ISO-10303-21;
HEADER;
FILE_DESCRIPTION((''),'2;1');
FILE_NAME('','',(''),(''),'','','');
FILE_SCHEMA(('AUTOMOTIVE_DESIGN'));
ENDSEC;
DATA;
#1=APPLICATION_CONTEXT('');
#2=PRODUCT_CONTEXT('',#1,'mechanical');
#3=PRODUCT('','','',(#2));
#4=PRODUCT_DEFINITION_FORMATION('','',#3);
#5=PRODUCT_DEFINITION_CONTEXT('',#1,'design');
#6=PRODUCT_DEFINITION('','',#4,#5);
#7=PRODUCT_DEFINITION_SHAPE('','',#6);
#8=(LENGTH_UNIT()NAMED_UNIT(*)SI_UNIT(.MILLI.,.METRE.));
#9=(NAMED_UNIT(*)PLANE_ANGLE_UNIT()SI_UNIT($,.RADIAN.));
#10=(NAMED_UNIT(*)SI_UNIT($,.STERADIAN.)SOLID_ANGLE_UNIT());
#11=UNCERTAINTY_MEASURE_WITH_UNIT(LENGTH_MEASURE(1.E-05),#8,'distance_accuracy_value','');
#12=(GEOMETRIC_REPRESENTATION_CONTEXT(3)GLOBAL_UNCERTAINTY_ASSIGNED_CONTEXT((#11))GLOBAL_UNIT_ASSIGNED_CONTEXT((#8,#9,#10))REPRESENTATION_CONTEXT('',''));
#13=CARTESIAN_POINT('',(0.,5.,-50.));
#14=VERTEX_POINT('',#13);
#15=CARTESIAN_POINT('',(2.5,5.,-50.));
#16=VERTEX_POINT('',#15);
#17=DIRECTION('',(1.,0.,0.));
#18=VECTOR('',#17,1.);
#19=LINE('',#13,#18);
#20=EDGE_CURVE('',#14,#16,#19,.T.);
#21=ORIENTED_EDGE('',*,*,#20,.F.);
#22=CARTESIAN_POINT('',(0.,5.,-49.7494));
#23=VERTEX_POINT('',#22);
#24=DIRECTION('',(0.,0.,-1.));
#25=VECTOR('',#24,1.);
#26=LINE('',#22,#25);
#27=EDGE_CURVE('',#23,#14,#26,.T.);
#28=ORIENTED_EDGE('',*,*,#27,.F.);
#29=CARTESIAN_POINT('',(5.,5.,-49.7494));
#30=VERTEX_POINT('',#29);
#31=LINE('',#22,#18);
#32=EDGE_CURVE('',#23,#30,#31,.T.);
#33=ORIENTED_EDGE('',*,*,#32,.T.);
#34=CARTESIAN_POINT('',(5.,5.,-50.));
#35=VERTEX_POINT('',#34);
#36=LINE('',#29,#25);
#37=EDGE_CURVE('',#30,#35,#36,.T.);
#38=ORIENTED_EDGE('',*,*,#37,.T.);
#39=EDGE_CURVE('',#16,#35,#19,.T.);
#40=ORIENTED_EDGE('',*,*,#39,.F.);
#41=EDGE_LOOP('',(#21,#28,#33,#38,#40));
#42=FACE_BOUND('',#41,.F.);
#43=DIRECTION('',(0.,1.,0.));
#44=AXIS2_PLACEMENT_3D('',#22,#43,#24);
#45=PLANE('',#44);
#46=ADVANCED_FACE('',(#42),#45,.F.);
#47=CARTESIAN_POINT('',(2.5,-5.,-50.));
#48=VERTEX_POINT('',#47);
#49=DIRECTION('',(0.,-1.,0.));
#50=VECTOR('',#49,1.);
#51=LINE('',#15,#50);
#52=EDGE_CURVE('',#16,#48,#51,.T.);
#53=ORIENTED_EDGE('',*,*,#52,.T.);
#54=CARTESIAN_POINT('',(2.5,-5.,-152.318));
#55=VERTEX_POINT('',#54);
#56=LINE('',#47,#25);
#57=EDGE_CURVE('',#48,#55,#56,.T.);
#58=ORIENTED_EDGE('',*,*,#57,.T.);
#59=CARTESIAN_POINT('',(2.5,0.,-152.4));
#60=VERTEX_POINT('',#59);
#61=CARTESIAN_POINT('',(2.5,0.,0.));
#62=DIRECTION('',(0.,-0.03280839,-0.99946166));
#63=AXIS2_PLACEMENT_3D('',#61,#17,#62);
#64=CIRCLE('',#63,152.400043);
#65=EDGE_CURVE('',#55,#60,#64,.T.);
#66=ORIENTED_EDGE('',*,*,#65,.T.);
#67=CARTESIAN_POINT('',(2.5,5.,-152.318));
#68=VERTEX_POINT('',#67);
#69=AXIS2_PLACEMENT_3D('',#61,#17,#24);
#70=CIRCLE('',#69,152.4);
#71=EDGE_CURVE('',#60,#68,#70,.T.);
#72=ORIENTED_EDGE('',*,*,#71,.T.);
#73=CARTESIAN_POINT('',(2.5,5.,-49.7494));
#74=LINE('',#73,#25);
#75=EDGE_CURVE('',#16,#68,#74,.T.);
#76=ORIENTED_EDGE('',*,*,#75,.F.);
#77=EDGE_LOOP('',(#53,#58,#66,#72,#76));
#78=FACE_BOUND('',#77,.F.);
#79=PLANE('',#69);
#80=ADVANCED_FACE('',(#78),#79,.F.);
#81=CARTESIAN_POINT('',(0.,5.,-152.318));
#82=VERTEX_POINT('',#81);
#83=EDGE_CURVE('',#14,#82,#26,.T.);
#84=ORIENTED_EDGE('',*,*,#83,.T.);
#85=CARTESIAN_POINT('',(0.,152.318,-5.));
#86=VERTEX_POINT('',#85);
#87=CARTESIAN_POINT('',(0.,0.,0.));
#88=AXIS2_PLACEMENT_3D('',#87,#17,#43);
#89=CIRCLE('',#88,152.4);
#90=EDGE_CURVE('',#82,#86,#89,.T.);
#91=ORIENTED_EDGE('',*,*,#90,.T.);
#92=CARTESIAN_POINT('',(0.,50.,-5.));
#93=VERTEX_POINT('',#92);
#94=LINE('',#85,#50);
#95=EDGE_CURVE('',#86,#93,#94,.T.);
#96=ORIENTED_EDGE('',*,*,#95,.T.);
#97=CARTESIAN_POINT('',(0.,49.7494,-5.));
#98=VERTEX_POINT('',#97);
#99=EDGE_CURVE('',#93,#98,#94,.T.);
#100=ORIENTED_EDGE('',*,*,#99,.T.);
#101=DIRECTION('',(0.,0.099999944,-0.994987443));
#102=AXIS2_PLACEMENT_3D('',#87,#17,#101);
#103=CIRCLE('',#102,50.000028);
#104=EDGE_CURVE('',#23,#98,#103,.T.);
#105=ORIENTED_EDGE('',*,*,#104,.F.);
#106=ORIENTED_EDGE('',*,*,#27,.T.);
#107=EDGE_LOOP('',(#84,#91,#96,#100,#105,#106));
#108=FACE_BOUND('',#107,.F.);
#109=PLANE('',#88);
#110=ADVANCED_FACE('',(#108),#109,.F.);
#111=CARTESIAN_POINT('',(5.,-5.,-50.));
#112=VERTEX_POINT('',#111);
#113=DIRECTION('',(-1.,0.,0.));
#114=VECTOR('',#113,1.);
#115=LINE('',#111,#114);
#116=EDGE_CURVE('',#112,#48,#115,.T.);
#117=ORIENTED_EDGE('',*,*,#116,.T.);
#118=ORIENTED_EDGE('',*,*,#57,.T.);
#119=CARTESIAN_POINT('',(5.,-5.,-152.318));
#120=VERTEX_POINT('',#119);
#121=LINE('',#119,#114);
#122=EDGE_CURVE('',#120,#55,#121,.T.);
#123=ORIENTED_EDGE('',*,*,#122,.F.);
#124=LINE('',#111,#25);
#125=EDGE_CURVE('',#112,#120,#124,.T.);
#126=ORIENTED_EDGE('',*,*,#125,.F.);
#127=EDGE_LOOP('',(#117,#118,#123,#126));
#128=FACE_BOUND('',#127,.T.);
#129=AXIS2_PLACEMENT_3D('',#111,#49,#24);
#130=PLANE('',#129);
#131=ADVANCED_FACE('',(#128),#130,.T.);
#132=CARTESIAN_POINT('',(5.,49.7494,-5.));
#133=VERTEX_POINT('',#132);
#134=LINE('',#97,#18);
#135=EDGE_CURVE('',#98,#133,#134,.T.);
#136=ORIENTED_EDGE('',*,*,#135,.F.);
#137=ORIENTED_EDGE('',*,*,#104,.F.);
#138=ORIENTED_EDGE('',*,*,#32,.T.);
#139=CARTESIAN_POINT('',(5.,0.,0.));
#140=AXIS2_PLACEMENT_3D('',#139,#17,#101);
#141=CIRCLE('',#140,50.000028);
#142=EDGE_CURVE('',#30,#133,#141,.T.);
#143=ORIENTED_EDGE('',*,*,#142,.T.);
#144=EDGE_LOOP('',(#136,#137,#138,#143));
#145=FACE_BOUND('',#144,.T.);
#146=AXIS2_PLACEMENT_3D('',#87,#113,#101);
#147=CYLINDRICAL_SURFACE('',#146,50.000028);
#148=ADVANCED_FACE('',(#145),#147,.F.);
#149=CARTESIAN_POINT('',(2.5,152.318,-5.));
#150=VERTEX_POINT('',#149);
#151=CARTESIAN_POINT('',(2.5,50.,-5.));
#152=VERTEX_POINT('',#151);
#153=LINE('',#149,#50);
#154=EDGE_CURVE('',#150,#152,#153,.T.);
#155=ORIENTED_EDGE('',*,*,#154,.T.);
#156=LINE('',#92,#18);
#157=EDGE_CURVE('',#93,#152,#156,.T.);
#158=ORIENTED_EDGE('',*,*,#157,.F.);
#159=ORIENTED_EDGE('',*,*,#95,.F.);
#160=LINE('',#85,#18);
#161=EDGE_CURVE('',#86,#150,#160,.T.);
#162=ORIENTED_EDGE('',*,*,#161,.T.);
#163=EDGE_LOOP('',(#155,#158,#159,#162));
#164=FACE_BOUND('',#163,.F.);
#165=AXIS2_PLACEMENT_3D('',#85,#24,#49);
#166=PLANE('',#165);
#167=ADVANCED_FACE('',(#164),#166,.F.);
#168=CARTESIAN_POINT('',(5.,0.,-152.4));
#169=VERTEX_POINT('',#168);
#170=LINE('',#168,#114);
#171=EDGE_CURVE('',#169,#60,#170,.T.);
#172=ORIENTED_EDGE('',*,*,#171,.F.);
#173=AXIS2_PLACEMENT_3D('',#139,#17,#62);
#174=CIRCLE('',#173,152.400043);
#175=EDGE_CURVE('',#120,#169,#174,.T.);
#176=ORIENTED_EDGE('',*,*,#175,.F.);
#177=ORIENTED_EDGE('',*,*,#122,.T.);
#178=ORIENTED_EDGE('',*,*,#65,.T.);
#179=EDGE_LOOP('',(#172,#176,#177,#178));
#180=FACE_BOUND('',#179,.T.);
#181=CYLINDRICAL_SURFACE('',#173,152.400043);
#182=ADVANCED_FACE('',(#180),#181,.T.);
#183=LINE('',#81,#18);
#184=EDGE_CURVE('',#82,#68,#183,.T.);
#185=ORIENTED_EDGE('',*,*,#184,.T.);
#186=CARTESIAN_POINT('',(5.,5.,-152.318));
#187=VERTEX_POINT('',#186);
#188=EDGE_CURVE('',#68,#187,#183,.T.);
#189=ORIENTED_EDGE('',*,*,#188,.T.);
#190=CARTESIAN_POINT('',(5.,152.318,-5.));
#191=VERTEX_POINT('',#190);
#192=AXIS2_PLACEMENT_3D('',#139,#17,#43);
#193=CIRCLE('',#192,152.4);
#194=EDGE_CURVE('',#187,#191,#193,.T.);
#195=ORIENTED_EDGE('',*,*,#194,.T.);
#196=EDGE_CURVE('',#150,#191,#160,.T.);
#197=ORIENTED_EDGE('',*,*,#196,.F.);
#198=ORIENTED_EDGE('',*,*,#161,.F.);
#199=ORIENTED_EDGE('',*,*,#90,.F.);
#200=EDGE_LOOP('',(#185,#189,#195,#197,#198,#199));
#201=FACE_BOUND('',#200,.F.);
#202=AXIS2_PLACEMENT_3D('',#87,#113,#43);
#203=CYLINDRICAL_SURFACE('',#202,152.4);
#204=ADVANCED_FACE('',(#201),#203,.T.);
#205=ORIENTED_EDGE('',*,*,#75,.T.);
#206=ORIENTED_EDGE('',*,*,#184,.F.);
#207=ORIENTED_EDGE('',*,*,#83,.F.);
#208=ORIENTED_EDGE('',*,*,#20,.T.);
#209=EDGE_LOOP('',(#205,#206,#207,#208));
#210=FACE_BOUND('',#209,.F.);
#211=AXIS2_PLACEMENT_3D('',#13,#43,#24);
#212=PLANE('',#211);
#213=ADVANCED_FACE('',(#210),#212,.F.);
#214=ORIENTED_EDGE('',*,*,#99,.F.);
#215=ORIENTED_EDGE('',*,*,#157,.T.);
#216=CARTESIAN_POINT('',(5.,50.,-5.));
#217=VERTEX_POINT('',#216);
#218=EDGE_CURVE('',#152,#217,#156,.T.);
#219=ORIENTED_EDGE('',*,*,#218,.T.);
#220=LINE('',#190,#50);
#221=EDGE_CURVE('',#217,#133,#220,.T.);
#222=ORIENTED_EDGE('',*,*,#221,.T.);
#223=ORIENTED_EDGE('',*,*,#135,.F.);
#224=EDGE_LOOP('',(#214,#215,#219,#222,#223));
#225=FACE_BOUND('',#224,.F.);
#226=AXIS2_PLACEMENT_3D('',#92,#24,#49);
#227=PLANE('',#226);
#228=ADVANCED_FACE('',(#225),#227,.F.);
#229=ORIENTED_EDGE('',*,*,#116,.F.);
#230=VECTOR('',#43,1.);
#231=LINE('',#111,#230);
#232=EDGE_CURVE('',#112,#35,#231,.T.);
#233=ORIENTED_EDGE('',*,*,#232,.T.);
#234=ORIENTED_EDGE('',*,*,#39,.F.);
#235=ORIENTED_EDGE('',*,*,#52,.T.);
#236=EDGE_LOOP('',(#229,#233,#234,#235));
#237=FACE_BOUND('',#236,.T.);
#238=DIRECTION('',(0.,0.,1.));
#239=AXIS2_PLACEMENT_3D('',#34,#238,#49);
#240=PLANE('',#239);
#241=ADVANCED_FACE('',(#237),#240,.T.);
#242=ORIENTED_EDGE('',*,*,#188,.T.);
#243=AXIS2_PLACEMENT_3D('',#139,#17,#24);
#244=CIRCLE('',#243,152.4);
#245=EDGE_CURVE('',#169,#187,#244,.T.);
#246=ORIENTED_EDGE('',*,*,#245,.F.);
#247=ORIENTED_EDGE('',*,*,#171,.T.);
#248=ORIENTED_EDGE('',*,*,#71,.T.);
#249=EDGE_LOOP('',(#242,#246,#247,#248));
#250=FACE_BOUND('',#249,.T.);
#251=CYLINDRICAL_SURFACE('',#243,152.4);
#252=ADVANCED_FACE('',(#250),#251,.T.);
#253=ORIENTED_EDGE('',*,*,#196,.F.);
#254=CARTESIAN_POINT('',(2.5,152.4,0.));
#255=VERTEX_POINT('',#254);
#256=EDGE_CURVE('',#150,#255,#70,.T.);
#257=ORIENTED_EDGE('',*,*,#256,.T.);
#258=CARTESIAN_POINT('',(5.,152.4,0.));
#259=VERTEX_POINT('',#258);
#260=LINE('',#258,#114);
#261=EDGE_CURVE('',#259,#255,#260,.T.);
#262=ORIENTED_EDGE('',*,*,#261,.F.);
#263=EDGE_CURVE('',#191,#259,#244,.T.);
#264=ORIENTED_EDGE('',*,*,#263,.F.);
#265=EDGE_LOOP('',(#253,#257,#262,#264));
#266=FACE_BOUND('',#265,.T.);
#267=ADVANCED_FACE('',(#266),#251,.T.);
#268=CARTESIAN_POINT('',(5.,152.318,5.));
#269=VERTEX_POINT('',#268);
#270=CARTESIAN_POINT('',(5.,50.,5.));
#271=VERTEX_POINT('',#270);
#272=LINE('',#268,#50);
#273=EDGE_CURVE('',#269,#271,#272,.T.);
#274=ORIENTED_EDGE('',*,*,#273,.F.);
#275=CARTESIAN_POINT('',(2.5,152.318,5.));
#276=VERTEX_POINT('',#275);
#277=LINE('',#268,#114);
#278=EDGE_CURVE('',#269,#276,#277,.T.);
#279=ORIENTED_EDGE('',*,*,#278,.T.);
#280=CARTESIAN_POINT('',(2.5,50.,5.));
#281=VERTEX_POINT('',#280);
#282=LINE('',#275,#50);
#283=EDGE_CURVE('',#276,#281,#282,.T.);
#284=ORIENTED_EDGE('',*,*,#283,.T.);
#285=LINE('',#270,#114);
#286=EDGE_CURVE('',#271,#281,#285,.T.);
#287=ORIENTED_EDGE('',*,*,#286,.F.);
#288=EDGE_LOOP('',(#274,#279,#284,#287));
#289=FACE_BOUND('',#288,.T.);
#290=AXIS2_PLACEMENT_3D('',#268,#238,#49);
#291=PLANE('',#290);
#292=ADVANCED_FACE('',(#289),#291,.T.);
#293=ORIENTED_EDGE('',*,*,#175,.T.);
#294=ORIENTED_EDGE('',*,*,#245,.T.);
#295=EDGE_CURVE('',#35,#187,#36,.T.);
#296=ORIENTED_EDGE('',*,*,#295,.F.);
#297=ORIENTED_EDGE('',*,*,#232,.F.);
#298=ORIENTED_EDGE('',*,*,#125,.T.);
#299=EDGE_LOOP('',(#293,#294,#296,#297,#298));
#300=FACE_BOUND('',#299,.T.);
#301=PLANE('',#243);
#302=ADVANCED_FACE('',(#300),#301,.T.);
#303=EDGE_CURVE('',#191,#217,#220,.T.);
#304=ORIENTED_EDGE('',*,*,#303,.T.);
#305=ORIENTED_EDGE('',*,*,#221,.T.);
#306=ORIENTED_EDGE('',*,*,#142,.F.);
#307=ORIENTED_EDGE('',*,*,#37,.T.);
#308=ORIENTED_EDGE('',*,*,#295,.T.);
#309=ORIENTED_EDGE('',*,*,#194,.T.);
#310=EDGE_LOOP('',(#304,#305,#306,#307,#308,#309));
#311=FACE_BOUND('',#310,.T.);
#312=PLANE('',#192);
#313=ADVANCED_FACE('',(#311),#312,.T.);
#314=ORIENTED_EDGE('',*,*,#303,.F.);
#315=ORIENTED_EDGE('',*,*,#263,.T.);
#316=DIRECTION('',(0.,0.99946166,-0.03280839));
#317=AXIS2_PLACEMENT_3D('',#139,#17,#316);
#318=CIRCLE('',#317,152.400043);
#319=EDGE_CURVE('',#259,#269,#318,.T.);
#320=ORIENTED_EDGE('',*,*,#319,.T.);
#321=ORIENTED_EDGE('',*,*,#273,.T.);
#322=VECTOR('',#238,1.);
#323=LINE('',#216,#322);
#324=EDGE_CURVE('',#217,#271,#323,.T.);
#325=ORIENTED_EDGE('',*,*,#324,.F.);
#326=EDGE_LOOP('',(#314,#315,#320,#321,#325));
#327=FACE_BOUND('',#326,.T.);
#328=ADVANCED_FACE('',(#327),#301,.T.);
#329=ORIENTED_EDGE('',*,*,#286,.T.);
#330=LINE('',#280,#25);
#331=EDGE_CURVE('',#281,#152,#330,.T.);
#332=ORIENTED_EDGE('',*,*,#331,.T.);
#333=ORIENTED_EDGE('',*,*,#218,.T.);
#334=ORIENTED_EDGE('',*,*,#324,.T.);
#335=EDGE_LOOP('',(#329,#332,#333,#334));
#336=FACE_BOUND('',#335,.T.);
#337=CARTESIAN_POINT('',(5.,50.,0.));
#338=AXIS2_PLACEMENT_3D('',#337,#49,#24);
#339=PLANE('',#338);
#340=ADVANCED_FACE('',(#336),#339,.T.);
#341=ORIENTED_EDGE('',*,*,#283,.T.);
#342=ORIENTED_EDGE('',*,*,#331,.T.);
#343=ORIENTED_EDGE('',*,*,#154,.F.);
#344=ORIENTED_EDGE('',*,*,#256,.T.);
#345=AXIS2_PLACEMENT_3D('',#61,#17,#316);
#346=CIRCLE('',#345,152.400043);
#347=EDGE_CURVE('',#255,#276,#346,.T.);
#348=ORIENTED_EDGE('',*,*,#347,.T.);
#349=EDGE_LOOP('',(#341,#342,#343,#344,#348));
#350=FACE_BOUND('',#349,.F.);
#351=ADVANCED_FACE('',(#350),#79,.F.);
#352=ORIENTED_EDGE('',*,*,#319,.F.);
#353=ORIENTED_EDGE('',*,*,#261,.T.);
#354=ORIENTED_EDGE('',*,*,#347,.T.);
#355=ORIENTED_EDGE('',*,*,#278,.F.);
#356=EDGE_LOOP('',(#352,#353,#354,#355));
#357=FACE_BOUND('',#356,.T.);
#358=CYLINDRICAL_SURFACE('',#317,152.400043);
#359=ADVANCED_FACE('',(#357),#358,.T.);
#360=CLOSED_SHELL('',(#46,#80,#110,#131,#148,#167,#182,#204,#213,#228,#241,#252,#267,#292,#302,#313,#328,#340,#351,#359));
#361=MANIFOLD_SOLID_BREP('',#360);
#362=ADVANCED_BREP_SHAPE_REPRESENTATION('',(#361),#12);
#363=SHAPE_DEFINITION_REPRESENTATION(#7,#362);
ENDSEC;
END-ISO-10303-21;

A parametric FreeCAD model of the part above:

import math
import FreeCAD as App
import Part
import Sketcher
Q = App.Units.Quantity

doc = App.newDocument("Part")
body = doc.addObject("PartDesign::Body", "Body")

# Sketch on YZ plane
sketch1 = body.newObject("Sketcher::SketchObject", "Sketch")
sketch1.AttachmentSupport = (doc.getObject("YZ_Plane"), [""])
sketch1.MapMode = "FlatFace"
sketch1.addGeometry(Part.ArcOfCircle(Part.Circle(App.Vector(0, 0, 0), App.Vector(0, 0, 1), 152), math.radians(-88), math.radians(-2)), False)
sketch1.addGeometry(Part.LineSegment(App.Vector(152, -5, 0), App.Vector(50, -5, 0)), False)
sketch1.addGeometry(Part.ArcOfCircle(Part.Circle(App.Vector(0, 0, 0), App.Vector(0, 0, 1), 50), math.radians(-84), math.radians(-6)), False)
sketch1.addGeometry(Part.LineSegment(App.Vector(5, -50, 0), App.Vector(5, -152, 0)), False)
sketch1.addConstraint(Sketcher.Constraint("Coincident", 0, 2, 1, 1))
sketch1.addConstraint(Sketcher.Constraint("Coincident", 1, 2, 2, 2))
sketch1.addConstraint(Sketcher.Constraint("Coincident", 2, 1, 3, 1))
sketch1.addConstraint(Sketcher.Constraint("Coincident", 3, 2, 0, 1))
sketch1.addConstraint(Sketcher.Constraint("Horizontal", 1))
sketch1.addConstraint(Sketcher.Constraint("Vertical", 3))
sketch1.addConstraint(Sketcher.Constraint("Coincident", 0, 3, -1, 1))
sketch1.addConstraint(Sketcher.Constraint("Coincident", 2, 3, -1, 1))
sketch1.addConstraint(Sketcher.Constraint("Equal", 1, 3))
sketch1.addConstraint(Sketcher.Constraint("Radius", 0, Q("6 in")))
sketch1.addConstraint(Sketcher.Constraint("Radius", 2, Q("1.9685 in")))
sketch1.addConstraint(Sketcher.Constraint("DistanceX", 1, 2, 1, 1, 102.5686))
pad1 = body.newObject("PartDesign::Pad", "Pad")
pad1.Profile = sketch1
pad1.Length = 5

# Sketch on YZ plane
sketch2 = body.newObject("Sketcher::SketchObject", "Sketch001")
sketch2.AttachmentSupport = (doc.getObject("YZ_Plane"), [""])
sketch2.MapMode = "FlatFace"
sketch2.AttachmentOffset = App.Placement(App.Vector(0, 0, 5), App.Rotation())
sketch2.addGeometry(Part.LineSegment(App.Vector(5, -152, 0), App.Vector(5, -50, 0)), False)
sketch2.addGeometry(Part.LineSegment(App.Vector(5, -50, 0), App.Vector(-5, -50, 0)), False)
sketch2.addGeometry(Part.LineSegment(App.Vector(-5, -50, 0), App.Vector(-5, -152, 0)), False)
sketch2.addGeometry(Part.ArcOfCircle(Part.Circle(App.Vector(0, 0, 0), App.Vector(0, 0, 1), 152), math.radians(-91.88), math.radians(-88.12)), False)
sketch2.addGeometry(Part.LineSegment(App.Vector(50, -5, 0), App.Vector(152, -5, 0)), False)
sketch2.addGeometry(Part.ArcOfCircle(Part.Circle(App.Vector(0, 0, 0), App.Vector(0, 0, 1), 152), math.radians(-1.88), math.radians(1.88)), False)
sketch2.addGeometry(Part.LineSegment(App.Vector(152, 5, 0), App.Vector(50, 5, 0)), False)
sketch2.addGeometry(Part.LineSegment(App.Vector(50, 5, 0), App.Vector(50, -5, 0)), False)
sketch2.addConstraint(Sketcher.Constraint("Coincident", 0, 2, 1, 1))
sketch2.addConstraint(Sketcher.Constraint("Coincident", 1, 2, 2, 1))
sketch2.addConstraint(Sketcher.Constraint("Coincident", 2, 2, 3, 1))
sketch2.addConstraint(Sketcher.Constraint("Coincident", 3, 2, 0, 1))
sketch2.addConstraint(Sketcher.Constraint("Coincident", 4, 2, 5, 1))
sketch2.addConstraint(Sketcher.Constraint("Coincident", 5, 2, 6, 1))
sketch2.addConstraint(Sketcher.Constraint("Coincident", 6, 2, 7, 1))
sketch2.addConstraint(Sketcher.Constraint("Coincident", 7, 2, 4, 1))
sketch2.addConstraint(Sketcher.Constraint("Vertical", 0))
sketch2.addConstraint(Sketcher.Constraint("Horizontal", 1))
sketch2.addConstraint(Sketcher.Constraint("Vertical", 2))
sketch2.addConstraint(Sketcher.Constraint("Horizontal", 4))
sketch2.addConstraint(Sketcher.Constraint("Horizontal", 6))
sketch2.addConstraint(Sketcher.Constraint("Vertical", 7))
sketch2.addConstraint(Sketcher.Constraint("Coincident", 3, 3, -1, 1))
sketch2.addConstraint(Sketcher.Constraint("Coincident", 5, 3, -1, 1))
sketch2.addConstraint(Sketcher.Constraint("Equal", 3, 5))
sketch2.addConstraint(Sketcher.Constraint("Horizontal", 2, 2, 3, 2))
sketch2.addConstraint(Sketcher.Constraint("Vertical", 4, 2, 5, 2))
sketch2.addConstraint(Sketcher.Constraint("Equal", 6, 0))
sketch2.addConstraint(Sketcher.Constraint("Equal", 1, 7))
sketch2.addConstraint(Sketcher.Constraint("Radius", 3, Q("6 in")))
sketch2.addConstraint(Sketcher.Constraint("DistanceX", 1, 2, 1, 1, Q("0.3937 in")))
sketch2.addConstraint(Sketcher.Constraint("DistanceX", 4, 1, 4, 2, 102.318))
pad2 = body.newObject("PartDesign::Pad", "Pad001")
pad2.Profile = sketch2
pad2.Length = 2.5
pad2.Reversed = True

doc.recompute()
